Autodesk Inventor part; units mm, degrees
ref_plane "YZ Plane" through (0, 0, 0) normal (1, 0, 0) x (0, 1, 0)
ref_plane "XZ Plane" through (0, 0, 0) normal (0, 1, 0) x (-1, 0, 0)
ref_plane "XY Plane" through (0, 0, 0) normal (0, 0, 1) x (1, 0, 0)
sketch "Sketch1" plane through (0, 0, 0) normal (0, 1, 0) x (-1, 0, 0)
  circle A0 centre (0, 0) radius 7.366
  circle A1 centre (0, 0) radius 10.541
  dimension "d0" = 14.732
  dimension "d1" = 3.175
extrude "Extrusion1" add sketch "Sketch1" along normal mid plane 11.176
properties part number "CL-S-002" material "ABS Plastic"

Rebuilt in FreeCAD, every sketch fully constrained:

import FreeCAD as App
import Part
import Sketcher

V = App.Vector
Q = App.Units.Quantity

doc = App.newDocument("Part")
params = doc.addObject("Spreadsheet::Sheet", "Params")
for row, (alias, value) in enumerate([
    ("sketch1_diameter", "0.58 in"),
    ("sketch1_diameter2", "0.83 in"),
    ("pad1_length", "0.44 in"),
], start=1):
    params.set(f"A{row}", alias)
    params.set(f"B{row}", "=" + value)
    params.setAlias(f"B{row}", alias)

body = doc.addObject("PartDesign::Body", "Body")

# Sketch on XZ plane
sketch1 = body.newObject("Sketcher::SketchObject", "Sketch")
sketch1.AttachmentSupport = (doc.getObject("XZ_Plane"), [""])
sketch1.MapMode = "FlatFace"
sketch1.addGeometry(Part.Circle(V(0, 0, 0), V(0, 0, 1), 11), False)
sketch1.addGeometry(Part.Circle(V(0, 0, 0), V(0, 0, 1), 7), False)
sketch1.addConstraint(Sketcher.Constraint("Coincident", 0, 3, -1, 1))
sketch1.addConstraint(Sketcher.Constraint("Coincident", 1, 3, -1, 1))
sketch1.addConstraint(Sketcher.Constraint("Diameter", 1, Q("0.58 in")))
sketch1.addConstraint(Sketcher.Constraint("Diameter", 0, Q("0.83 in")))
sketch1.setExpression("Constraints[2]", "Params.sketch1_diameter")
sketch1.setExpression("Constraints[3]", "Params.sketch1_diameter2")
pad1 = body.newObject("PartDesign::Pad", "Pad")
pad1.Profile = sketch1
pad1.setExpression("Length", "Params.pad1_length")
pad1.Midplane = True

doc.recompute()
